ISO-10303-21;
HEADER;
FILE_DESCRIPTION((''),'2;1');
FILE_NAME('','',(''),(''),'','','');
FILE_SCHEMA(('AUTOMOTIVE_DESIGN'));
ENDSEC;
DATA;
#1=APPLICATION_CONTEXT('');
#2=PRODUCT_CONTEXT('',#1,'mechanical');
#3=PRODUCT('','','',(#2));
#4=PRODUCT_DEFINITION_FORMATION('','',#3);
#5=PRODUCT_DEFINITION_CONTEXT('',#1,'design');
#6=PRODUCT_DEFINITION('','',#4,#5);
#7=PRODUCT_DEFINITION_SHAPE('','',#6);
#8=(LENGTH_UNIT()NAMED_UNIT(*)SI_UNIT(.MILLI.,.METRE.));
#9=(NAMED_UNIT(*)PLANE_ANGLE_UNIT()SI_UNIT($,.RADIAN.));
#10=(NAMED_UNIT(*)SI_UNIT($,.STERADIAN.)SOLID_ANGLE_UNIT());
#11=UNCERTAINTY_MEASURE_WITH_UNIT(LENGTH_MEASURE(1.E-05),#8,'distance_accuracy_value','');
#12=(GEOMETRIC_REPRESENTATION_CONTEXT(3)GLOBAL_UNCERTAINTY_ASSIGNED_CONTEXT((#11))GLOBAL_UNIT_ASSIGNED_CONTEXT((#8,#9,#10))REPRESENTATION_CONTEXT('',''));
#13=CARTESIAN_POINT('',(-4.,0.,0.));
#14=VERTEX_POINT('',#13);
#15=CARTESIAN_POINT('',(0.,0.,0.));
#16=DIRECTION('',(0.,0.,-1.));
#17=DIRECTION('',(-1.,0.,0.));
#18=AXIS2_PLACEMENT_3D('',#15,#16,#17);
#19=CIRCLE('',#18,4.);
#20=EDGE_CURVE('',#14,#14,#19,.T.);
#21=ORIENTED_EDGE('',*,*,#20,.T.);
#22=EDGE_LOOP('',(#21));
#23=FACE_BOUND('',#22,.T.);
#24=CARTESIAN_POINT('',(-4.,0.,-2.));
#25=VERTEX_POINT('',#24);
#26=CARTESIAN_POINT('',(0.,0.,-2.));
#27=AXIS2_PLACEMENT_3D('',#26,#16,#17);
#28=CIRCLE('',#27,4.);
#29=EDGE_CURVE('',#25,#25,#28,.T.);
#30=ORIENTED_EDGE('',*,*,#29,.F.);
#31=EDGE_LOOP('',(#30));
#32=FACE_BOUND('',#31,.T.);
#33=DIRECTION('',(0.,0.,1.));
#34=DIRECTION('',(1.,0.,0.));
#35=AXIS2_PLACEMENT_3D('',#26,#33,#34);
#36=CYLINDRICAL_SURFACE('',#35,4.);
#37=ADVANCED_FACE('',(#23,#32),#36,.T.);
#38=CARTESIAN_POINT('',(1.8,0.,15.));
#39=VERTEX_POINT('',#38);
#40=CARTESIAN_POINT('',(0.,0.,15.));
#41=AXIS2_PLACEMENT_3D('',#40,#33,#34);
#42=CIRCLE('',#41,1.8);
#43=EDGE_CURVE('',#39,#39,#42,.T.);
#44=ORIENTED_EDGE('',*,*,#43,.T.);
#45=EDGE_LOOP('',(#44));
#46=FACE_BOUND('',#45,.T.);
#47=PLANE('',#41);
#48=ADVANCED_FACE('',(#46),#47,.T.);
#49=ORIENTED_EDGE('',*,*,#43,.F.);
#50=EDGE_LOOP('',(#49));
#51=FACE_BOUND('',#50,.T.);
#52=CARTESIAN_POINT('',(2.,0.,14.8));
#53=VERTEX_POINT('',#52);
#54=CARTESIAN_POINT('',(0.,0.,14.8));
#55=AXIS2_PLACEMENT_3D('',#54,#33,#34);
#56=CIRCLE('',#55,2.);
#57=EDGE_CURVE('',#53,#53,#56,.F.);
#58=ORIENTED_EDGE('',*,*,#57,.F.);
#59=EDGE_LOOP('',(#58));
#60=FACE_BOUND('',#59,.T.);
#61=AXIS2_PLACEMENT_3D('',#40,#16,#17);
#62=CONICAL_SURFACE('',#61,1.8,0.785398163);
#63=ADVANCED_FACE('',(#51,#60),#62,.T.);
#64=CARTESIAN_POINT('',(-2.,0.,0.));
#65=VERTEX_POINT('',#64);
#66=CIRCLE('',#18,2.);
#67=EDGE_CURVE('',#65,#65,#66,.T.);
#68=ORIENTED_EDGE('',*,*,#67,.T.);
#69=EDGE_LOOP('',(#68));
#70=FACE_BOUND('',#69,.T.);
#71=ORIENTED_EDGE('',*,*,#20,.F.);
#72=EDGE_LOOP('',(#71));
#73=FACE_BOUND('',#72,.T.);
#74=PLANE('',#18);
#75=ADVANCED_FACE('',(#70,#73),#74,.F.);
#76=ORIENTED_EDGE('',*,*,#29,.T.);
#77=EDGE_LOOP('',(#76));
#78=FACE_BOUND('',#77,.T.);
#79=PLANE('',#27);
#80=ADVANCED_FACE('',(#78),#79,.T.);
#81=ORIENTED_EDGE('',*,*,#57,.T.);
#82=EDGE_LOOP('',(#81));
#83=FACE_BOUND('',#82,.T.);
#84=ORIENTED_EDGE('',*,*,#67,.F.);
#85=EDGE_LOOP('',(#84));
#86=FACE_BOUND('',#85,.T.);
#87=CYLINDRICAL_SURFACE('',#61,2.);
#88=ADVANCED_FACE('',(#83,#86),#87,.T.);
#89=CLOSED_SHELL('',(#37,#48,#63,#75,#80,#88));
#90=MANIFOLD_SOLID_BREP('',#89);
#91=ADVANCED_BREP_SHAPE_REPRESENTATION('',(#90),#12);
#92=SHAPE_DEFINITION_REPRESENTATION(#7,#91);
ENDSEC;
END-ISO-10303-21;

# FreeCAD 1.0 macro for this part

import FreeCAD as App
import Part
import Sketcher
from FreeCAD import Vector


def edges_at(feature, points):
    """Names of the edges that pass closest to the given points."""
    edges = feature.Shape.Edges
    near = lambda p: min(range(len(edges)), key=lambda i: edges[i].distToShape(Part.Vertex(*p))[0])
    return sorted({f"Edge{near(p) + 1}" for p in points})

doc = App.newDocument("Part")
params = doc.addObject("Spreadsheet::Sheet", "Params")
for row, (alias, value) in enumerate([
    ("sketch1_diameter", "4 mm"),
    ("pad1_length", "15 mm"),
    ("sketch2_diameter", "8 mm"),
    ("pad2_length", "2 mm"),
    ("chamfer_size", "0.2 mm"),
], start=1):
    params.set(f"A{row}", alias)
    params.set(f"B{row}", "=" + value)
    params.setAlias(f"B{row}", alias)

body = doc.addObject("PartDesign::Body", "Body")

sketch1 = body.newObject("Sketcher::SketchObject", "Sketch")
sketch1.AttachmentSupport = (doc.getObject("XY_Plane"), [""])
sketch1.MapMode = "FlatFace"
sketch1.addGeometry(Part.Circle(Vector(0, 0, 0), Vector(0, 0, 1), 2), False)
sketch1.addConstraint(Sketcher.Constraint("Coincident", 0, 3, -1, 1))
sketch1.addConstraint(Sketcher.Constraint("Diameter", 0, 4.0))
sketch1.setExpression("Constraints[1]", "Params.sketch1_diameter")
pad1 = body.newObject("PartDesign::Pad", "Pad")
pad1.Profile = sketch1
pad1.setExpression("Length", "Params.pad1_length")

sketch2 = body.newObject("Sketcher::SketchObject", "Sketch001")
sketch2.AttachmentSupport = (doc.getObject("XY_Plane"), [""])
sketch2.MapMode = "FlatFace"
sketch2.addGeometry(Part.Circle(Vector(0, 0, 0), Vector(0, 0, 1), 4), False)
sketch2.addConstraint(Sketcher.Constraint("Coincident", 0, 3, -1, 1))
sketch2.addConstraint(Sketcher.Constraint("Diameter", 0, 8.0))
sketch2.setExpression("Constraints[1]", "Params.sketch2_diameter")
pad2 = body.newObject("PartDesign::Pad", "Pad001")
pad2.Profile = sketch2
pad2.setExpression("Length", "Params.pad2_length")
pad2.Reversed = True
doc.recompute()

chamfer = body.newObject("PartDesign::Chamfer", "Chamfer")
chamfer.Base = (pad2, edges_at(pad2, [(-2, 0, 15)]))
chamfer.setExpression("Size", "Params.chamfer_size")

doc.recompute()
